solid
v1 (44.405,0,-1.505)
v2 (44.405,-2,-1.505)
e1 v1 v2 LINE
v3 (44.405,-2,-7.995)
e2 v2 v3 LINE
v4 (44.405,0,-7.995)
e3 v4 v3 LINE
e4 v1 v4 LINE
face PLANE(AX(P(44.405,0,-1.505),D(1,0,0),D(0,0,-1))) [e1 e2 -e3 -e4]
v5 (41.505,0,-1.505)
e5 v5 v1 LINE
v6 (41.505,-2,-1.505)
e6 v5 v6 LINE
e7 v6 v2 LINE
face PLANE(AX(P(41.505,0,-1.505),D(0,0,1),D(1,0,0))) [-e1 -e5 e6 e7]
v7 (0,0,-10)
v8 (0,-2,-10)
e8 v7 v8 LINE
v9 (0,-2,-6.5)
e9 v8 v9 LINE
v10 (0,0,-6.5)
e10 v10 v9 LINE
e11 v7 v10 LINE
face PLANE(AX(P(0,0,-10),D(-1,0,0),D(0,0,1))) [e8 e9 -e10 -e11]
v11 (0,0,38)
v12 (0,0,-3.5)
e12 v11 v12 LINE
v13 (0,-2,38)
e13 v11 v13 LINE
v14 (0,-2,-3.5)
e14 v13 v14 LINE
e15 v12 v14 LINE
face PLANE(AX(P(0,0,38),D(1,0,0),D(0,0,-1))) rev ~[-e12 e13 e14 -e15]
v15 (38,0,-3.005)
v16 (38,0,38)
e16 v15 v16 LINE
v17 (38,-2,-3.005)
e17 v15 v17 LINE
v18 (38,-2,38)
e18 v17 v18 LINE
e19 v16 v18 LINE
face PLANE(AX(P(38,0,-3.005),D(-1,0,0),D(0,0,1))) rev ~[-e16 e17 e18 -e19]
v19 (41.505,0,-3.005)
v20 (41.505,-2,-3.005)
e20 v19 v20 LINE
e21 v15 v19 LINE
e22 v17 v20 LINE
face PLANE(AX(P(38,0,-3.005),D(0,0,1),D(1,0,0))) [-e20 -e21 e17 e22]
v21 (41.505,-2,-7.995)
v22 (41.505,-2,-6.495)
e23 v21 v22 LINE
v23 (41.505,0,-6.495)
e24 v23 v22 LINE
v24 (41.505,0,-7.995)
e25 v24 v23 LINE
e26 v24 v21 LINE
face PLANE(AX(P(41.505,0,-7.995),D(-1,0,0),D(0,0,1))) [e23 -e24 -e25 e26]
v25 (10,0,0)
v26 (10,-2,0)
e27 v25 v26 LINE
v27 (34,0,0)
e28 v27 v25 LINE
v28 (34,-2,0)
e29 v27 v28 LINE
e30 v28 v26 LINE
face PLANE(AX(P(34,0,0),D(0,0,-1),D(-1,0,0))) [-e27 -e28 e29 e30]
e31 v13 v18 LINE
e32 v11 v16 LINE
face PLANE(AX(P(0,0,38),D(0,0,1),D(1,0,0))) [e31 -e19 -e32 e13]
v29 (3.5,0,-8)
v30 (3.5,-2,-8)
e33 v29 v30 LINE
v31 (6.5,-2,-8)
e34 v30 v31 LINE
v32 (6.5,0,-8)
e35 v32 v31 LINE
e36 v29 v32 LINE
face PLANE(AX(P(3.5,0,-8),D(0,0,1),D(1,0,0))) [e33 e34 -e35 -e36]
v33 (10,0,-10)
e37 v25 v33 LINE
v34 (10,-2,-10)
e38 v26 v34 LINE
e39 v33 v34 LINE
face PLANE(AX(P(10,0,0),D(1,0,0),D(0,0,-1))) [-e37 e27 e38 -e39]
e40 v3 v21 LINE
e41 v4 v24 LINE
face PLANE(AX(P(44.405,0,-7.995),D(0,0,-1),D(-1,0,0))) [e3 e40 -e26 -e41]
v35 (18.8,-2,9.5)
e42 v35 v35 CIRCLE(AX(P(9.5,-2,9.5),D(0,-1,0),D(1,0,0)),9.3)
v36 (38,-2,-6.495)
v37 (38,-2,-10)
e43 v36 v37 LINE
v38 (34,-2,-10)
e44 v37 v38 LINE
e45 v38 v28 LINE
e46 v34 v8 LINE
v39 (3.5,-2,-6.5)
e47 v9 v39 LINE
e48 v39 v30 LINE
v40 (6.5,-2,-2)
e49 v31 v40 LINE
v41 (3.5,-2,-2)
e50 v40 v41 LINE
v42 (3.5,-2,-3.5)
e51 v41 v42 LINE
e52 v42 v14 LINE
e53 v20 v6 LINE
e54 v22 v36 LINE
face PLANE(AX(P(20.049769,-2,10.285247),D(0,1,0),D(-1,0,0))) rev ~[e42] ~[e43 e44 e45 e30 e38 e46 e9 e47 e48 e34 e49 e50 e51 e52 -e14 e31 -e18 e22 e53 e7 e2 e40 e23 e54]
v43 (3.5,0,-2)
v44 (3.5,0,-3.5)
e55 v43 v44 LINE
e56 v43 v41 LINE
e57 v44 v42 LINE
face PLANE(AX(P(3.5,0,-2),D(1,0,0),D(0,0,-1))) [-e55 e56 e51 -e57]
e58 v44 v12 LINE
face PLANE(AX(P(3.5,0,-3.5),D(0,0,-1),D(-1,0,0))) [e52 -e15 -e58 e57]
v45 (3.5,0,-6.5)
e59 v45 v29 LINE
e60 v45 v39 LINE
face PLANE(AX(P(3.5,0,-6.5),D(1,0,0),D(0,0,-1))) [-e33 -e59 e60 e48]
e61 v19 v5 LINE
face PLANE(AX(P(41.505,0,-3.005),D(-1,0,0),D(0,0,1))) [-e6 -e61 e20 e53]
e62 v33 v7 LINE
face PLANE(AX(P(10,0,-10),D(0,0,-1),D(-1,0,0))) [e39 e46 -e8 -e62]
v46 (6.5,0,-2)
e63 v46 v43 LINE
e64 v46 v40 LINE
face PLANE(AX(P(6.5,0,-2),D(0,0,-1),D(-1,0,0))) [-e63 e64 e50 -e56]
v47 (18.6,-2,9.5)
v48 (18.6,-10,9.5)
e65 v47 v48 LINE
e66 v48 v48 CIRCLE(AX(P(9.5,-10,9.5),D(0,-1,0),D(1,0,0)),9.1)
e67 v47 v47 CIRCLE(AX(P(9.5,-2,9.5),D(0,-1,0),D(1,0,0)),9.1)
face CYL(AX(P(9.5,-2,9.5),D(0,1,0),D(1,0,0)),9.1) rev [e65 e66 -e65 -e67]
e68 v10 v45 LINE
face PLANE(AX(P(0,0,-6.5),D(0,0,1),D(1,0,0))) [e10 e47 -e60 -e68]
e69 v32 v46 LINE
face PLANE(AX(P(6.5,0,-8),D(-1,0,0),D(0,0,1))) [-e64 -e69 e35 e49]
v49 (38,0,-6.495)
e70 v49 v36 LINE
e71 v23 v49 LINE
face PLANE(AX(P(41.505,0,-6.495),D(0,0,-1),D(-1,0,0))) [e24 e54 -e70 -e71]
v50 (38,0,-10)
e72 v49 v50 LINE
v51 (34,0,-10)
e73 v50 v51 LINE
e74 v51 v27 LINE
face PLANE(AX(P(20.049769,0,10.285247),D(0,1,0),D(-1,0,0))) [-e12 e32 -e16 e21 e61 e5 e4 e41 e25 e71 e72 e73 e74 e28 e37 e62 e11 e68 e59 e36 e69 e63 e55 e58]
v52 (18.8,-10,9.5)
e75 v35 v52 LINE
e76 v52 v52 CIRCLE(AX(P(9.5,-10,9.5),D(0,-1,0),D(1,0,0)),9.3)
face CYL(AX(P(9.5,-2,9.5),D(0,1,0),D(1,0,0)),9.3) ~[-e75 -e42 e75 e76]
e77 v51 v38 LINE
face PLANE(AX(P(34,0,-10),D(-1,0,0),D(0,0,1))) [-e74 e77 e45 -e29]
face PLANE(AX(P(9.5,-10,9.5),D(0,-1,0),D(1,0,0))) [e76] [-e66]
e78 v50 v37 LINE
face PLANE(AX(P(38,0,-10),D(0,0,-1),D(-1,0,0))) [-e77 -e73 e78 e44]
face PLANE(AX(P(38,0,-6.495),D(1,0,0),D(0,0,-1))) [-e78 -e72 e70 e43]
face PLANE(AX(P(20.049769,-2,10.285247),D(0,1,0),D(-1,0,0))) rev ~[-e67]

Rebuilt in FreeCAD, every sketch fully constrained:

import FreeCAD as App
import Part
import Sketcher
Q = App.Units.Quantity

doc = App.newDocument("Part")
body = doc.addObject("PartDesign::Body", "Body")

sketch1 = body.newObject("Sketcher::SketchObject", "Sketch")
sketch1.AttachmentSupport = (doc.getObject("XZ_Plane"), [""])
sketch1.MapMode = "FlatFace"
sketch1.addGeometry(Part.LineSegment(App.Vector(10, -10, 0), App.Vector(10, 0, 0)), False)
sketch1.addGeometry(Part.LineSegment(App.Vector(10, 0, 0), App.Vector(34, 0, 0)), False)
sketch1.addGeometry(Part.LineSegment(App.Vector(34, 0, 0), App.Vector(34, -10, 0)), False)
sketch1.addGeometry(Part.LineSegment(App.Vector(34, -10, 0), App.Vector(38, -10, 0)), False)
sketch1.addGeometry(Part.LineSegment(App.Vector(38, -10, 0), App.Vector(38, -6.5, 0)), False)
sketch1.addGeometry(Part.LineSegment(App.Vector(38, -6.5, 0), App.Vector(41.5, -6.5, 0)), False)
sketch1.addGeometry(Part.LineSegment(App.Vector(41.5, -6.5, 0), App.Vector(41.5, -8, 0)), False)
sketch1.addGeometry(Part.LineSegment(App.Vector(41.5, -8, 0), App.Vector(44.4, -8, 0)), False)
sketch1.addGeometry(Part.LineSegment(App.Vector(44.4, -8, 0), App.Vector(44.4, -1.5, 0)), False)
sketch1.addGeometry(Part.LineSegment(App.Vector(44.4, -1.5, 0), App.Vector(41.5, -1.5, 0)), False)
sketch1.addGeometry(Part.LineSegment(App.Vector(41.5, -1.5, 0), App.Vector(41.5, -3, 0)), False)
sketch1.addGeometry(Part.LineSegment(App.Vector(41.5, -3, 0), App.Vector(38, -3, 0)), False)
sketch1.addGeometry(Part.LineSegment(App.Vector(38, -3, 0), App.Vector(38, 38, 0)), False)
sketch1.addGeometry(Part.LineSegment(App.Vector(38, 38, 0), App.Vector(0, 38, 0)), False)
sketch1.addGeometry(Part.LineSegment(App.Vector(0, 38, 0), App.Vector(0, -3.5, 0)), False)
sketch1.addGeometry(Part.LineSegment(App.Vector(0, -3.5, 0), App.Vector(3.5, -3.5, 0)), False)
sketch1.addGeometry(Part.LineSegment(App.Vector(3.5, -3.5, 0), App.Vector(3.5, -2, 0)), False)
sketch1.addGeometry(Part.LineSegment(App.Vector(3.5, -2, 0), App.Vector(6.5, -2, 0)), False)
sketch1.addGeometry(Part.LineSegment(App.Vector(6.5, -2, 0), App.Vector(6.5, -8, 0)), False)
sketch1.addGeometry(Part.LineSegment(App.Vector(6.5, -8, 0), App.Vector(3.5, -8, 0)), False)
sketch1.addGeometry(Part.LineSegment(App.Vector(3.5, -8, 0), App.Vector(3.5, -6.5, 0)), False)
sketch1.addGeometry(Part.LineSegment(App.Vector(3.5, -6.5, 0), App.Vector(0, -6.5, 0)), False)
sketch1.addGeometry(Part.LineSegment(App.Vector(0, -6.5, 0), App.Vector(0, -10, 0)), False)
sketch1.addGeometry(Part.LineSegment(App.Vector(0, -10, 0), App.Vector(10, -10, 0)), False)
sketch1.addConstraint(Sketcher.Constraint("Coincident", 0, 2, 1, 1))
sketch1.addConstraint(Sketcher.Constraint("Coincident", 1, 2, 2, 1))
sketch1.addConstraint(Sketcher.Constraint("Coincident", 2, 2, 3, 1))
sketch1.addConstraint(Sketcher.Constraint("Coincident", 3, 2, 4, 1))
sketch1.addConstraint(Sketcher.Constraint("Coincident", 4, 2, 5, 1))
sketch1.addConstraint(Sketcher.Constraint("Coincident", 5, 2, 6, 1))
sketch1.addConstraint(Sketcher.Constraint("Coincident", 6, 2, 7, 1))
sketch1.addConstraint(Sketcher.Constraint("Coincident", 7, 2, 8, 1))
sketch1.addConstraint(Sketcher.Constraint("Coincident", 8, 2, 9, 1))
sketch1.addConstraint(Sketcher.Constraint("Coincident", 9, 2, 10, 1))
sketch1.addConstraint(Sketcher.Constraint("Coincident", 10, 2, 11, 1))
sketch1.addConstraint(Sketcher.Constraint("Coincident", 11, 2, 12, 1))
sketch1.addConstraint(Sketcher.Constraint("Coincident", 12, 2, 13, 1))
sketch1.addConstraint(Sketcher.Constraint("Coincident", 13, 2, 14, 1))
sketch1.addConstraint(Sketcher.Constraint("Coincident", 14, 2, 15, 1))
sketch1.addConstraint(Sketcher.Constraint("Coincident", 15, 2, 16, 1))
sketch1.addConstraint(Sketcher.Constraint("Coincident", 16, 2, 17, 1))
sketch1.addConstraint(Sketcher.Constraint("Coincident", 17, 2, 18, 1))
sketch1.addConstraint(Sketcher.Constraint("Coincident", 18, 2, 19, 1))
sketch1.addConstraint(Sketcher.Constraint("Coincident", 19, 2, 20, 1))
sketch1.addConstraint(Sketcher.Constraint("Coincident", 20, 2, 21, 1))
sketch1.addConstraint(Sketcher.Constraint("Coincident", 21, 2, 22, 1))
sketch1.addConstraint(Sketcher.Constraint("Coincident", 22, 2, 23, 1))
sketch1.addConstraint(Sketcher.Constraint("Coincident", 23, 2, 0, 1))
sketch1.addConstraint(Sketcher.Constraint("Vertical", 0))
sketch1.addConstraint(Sketcher.Constraint("Horizontal", 1))
sketch1.addConstraint(Sketcher.Constraint("Vertical", 2))
sketch1.addConstraint(Sketcher.Constraint("Horizontal", 3))
sketch1.addConstraint(Sketcher.Constraint("Vertical", 4))
sketch1.addConstraint(Sketcher.Constraint("Horizontal", 5))
sketch1.addConstraint(Sketcher.Constraint("Vertical", 6))
sketch1.addConstraint(Sketcher.Constraint("Horizontal", 7))
sketch1.addConstraint(Sketcher.Constraint("Vertical", 8))
sketch1.addConstraint(Sketcher.Constraint("Horizontal", 9))
sketch1.addConstraint(Sketcher.Constraint("Vertical", 10))
sketch1.addConstraint(Sketcher.Constraint("Horizontal", 11))
sketch1.addConstraint(Sketcher.Constraint("Vertical", 12))
sketch1.addConstraint(Sketcher.Constraint("Horizontal", 13))
sketch1.addConstraint(Sketcher.Constraint("Vertical", 14))
sketch1.addConstraint(Sketcher.Constraint("Horizontal", 15))
sketch1.addConstraint(Sketcher.Constraint("Vertical", 16))
sketch1.addConstraint(Sketcher.Constraint("Horizontal", 17))
sketch1.addConstraint(Sketcher.Constraint("Vertical", 18))
sketch1.addConstraint(Sketcher.Constraint("Horizontal", 19))
sketch1.addConstraint(Sketcher.Constraint("Vertical", 20))
sketch1.addConstraint(Sketcher.Constraint("Horizontal", 21))
sketch1.addConstraint(Sketcher.Constraint("Vertical", 22))
sketch1.addConstraint(Sketcher.Constraint("Horizontal", 23))
sketch1.addConstraint(Sketcher.Constraint("PointOnObject", 0, 2, -1))
sketch1.addConstraint(Sketcher.Constraint("PointOnObject", 13, 2, -2))
sketch1.addConstraint(Sketcher.Constraint("PointOnObject", 21, 2, -2))
sketch1.addConstraint(Sketcher.Constraint("Horizontal", 3, 2, 22, 2))
sketch1.addConstraint(Sketcher.Constraint("Vertical", 6, 2, 9, 2))
sketch1.addConstraint(Sketcher.Constraint("Vertical", 4, 2, 11, 2))
sketch1.addConstraint(Sketcher.Constraint("Vertical", 16, 2, 19, 2))
sketch1.addConstraint(Sketcher.Constraint("Equal", 23, 0))
sketch1.addConstraint(Sketcher.Constraint("Equal", 11, 4))
sketch1.addConstraint(Sketcher.Constraint("Equal", 6, 10))
sketch1.addConstraint(Sketcher.Constraint("Equal", 10, 16))
sketch1.addConstraint(Sketcher.Constraint("Equal", 16, 20))
sketch1.addConstraint(Sketcher.Constraint("Equal", 21, 22))
sketch1.addConstraint(Sketcher.Constraint("DistanceX", 1, 1, 1, 2, Q("24 mm")))
sketch1.addConstraint(Sketcher.Constraint("DistanceX", 3, 1, 3, 2, Q("4 mm")))
sketch1.addConstraint(Sketcher.Constraint("DistanceX", 13, 2, 13, 1, Q("38 mm")))
sketch1.addConstraint(Sketcher.Constraint("DistanceX", 17, 1, 17, 2, Q("3 mm")))
sketch1.addConstraint(Sketcher.Constraint("DistanceY", 18, 2, 18, 1, Q("6 mm")))
sketch1.addConstraint(Sketcher.Constraint("DistanceX", 7, 1, 7, 2, Q("2.9 mm")))
sketch1.addConstraint(Sketcher.Constraint("DistanceX", 15, 1, 15, 2, Q("3.5 mm")))
sketch1.addConstraint(Sketcher.Constraint("DistanceY", 6, 2, 6, 1, Q("1.5 mm")))
sketch1.addConstraint(Sketcher.Constraint("DistanceY", 14, 2, 14, 1, Q("41.5 mm")))
sketch1.addConstraint(Sketcher.Constraint("DistanceY", 8, 1, 8, 2, Q("6.49 mm")))
sketch1.addConstraint(Sketcher.Constraint("DistanceX", 5, 1, 5, 2, Q("3.505 mm")))
pad1 = body.newObject("PartDesign::Pad", "Pad")
pad1.Profile = sketch1
pad1.Length = 2

sketch2 = body.newObject("Sketcher::SketchObject", "Sketch001")
sketch2.AttachmentSupport = (doc.getObject("XZ_Plane"), [""])
sketch2.MapMode = "FlatFace"
sketch2.AttachmentOffset = App.Placement(App.Vector(0, 0, 2), App.Rotation())
sketch2.addGeometry(Part.Circle(App.Vector(10, 10, 0), App.Vector(0, 0, 1), 9), False)
sketch2.addGeometry(Part.Circle(App.Vector(10, 10, 0), App.Vector(0, 0, 1), 9), False)
sketch2.addConstraint(Sketcher.Constraint("Coincident", 1, 3, 0, 3))
sketch2.addConstraint(Sketcher.Constraint("Diameter", 0, Q("18.6 mm")))
sketch2.addConstraint(Sketcher.Constraint("Diameter", 1, Q("18.2 mm")))
sketch2.addConstraint(Sketcher.Constraint("DistanceX", -1, 1, 0, 3, Q("9.5 mm")))
sketch2.addConstraint(Sketcher.Constraint("DistanceY", -1, 1, 0, 3, Q("9.5 mm")))
pad2 = body.newObject("PartDesign::Pad", "Pad001")
pad2.Profile = sketch2
pad2.Length = 8

doc.recompute()
